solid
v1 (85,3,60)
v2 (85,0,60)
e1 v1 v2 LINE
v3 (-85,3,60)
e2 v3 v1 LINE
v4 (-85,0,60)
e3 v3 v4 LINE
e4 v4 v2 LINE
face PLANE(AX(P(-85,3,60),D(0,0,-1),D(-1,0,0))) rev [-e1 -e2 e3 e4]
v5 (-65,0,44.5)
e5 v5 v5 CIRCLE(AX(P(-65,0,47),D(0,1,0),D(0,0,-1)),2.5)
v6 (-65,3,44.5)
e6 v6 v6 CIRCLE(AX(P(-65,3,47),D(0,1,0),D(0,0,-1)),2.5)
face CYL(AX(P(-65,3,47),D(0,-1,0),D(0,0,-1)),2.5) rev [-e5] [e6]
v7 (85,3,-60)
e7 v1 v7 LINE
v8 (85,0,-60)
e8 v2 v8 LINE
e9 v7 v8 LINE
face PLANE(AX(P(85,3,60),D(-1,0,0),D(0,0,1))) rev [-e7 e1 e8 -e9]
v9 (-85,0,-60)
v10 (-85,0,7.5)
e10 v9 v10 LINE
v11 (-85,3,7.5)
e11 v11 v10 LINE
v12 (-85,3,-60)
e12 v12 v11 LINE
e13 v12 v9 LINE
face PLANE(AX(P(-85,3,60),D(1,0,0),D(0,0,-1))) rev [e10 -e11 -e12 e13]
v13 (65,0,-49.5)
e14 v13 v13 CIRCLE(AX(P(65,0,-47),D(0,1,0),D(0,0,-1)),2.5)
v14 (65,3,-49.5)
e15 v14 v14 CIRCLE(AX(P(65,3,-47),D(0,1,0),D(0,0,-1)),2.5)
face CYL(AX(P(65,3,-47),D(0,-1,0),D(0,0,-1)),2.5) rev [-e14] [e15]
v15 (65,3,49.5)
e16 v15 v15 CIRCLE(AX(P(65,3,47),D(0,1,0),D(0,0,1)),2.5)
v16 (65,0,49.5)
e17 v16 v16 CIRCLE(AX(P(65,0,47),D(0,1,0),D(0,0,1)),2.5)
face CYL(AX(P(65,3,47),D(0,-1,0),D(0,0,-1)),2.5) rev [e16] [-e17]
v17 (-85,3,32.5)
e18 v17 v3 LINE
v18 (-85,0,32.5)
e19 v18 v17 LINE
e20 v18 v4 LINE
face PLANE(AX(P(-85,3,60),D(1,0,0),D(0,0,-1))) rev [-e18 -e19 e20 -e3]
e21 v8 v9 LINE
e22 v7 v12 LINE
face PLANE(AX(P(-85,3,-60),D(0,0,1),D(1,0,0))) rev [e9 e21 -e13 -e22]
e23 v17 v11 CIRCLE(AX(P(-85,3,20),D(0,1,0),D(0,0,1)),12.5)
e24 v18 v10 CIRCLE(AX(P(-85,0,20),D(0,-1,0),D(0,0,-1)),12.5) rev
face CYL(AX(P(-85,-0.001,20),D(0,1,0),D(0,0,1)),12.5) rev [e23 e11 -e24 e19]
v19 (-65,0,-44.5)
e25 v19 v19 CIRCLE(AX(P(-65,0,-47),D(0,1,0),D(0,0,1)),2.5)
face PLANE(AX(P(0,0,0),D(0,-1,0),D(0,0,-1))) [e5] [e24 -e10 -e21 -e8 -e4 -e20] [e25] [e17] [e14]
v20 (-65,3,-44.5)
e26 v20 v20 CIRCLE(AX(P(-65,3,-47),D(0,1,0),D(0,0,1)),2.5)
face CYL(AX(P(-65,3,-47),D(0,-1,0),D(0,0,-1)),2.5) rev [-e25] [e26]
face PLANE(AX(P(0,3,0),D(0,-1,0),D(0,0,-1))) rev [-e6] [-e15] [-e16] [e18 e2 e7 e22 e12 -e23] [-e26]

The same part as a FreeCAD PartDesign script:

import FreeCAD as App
import Part
import Sketcher
from FreeCAD import Vector
Q = App.Units.Quantity

doc = App.newDocument("Part")
params = doc.addObject("Spreadsheet::Sheet", "Params")
for row, (alias, value) in enumerate([
    ("sketch1_diameter", "5 mm"),
    ("sketch1_width", "170 mm"),
    ("sketch1_height", "120 mm"),
    ("pad1_length", "3 mm"),
    ("sketch2_diameter", "25 mm"),
], start=1):
    params.set(f"A{row}", alias)
    params.set(f"B{row}", "=" + value)
    params.setAlias(f"B{row}", alias)

body = doc.addObject("PartDesign::Body", "Body")

# Sketch on XZ plane
sketch1 = doc.addObject("Sketcher::SketchObject", "Sketch")
body.addObject(sketch1)
sketch1.AttachmentSupport = (doc.XZ_Plane, [""])
sketch1.MapMode = "FlatFace"
sketch1.addGeometry([
    Part.LineSegment(Vector(-85, -60, 0), Vector(-85, 60, 0)),  # 0
    Part.LineSegment(Vector(-85, 60, 0), Vector(85, 60, 0)),  # 1
    Part.LineSegment(Vector(85, 60, 0), Vector(85, -60, 0)),  # 2
    Part.LineSegment(Vector(85, -60, 0), Vector(-85, -60, 0)),  # 3
    Part.Circle(Vector(-65, 47, 0), Vector(0, 0, 1), 2.5),  # 4
    Part.Circle(Vector(65, 47, 0), Vector(0, 0, 1), 2.5),  # 5
    Part.Circle(Vector(-65, -47, 0), Vector(0, 0, 1), 2.5),  # 6
    Part.Circle(Vector(65, -47, 0), Vector(0, 0, 1), 2.5),  # 7
], False)
sketch1.addConstraint([
    Sketcher.Constraint("Coincident", 0, 2, 1, 1),
    Sketcher.Constraint("Coincident", 1, 2, 2, 1),
    Sketcher.Constraint("Coincident", 2, 2, 3, 1),
    Sketcher.Constraint("Coincident", 3, 2, 0, 1),
    Sketcher.Constraint("Vertical", 0),
    Sketcher.Constraint("Horizontal", 1),
    Sketcher.Constraint("Vertical", 2),
    Sketcher.Constraint("Horizontal", 3),
    Sketcher.Constraint("Equal", 4, 5),
    Sketcher.Constraint("Equal", 5, 6),
    Sketcher.Constraint("Equal", 6, 7),
    Sketcher.Constraint("Symmetric", 5, 3, 6, 3, -1, 1),
    Sketcher.Constraint("Symmetric", 4, 3, 7, 3, -1, 1),
    Sketcher.Constraint("Symmetric", 0, 2, 2, 2, -1, 1),
    Sketcher.Constraint("Symmetric", 4, 3, 5, 3, -2),
    Sketcher.Constraint("Diameter", 4, Q("5 mm")),
    Sketcher.Constraint("DistanceX", 1, 1, 1, 2, Q("170 mm")),
    Sketcher.Constraint("DistanceY", 0, 1, 0, 2, Q("120 mm")),
    Sketcher.Constraint("DistanceX", 4, 3, -1, 1, Q("65 mm")),
    Sketcher.Constraint("DistanceY", -1, 1, 4, 3, Q("47 mm")),
])
sketch1.setExpression("Constraints[15]", "Params.sketch1_diameter")
sketch1.setExpression("Constraints[16]", "Params.sketch1_width")
sketch1.setExpression("Constraints[17]", "Params.sketch1_height")
pad1 = doc.addObject("PartDesign::Pad", "Pad")
body.addObject(pad1)
pad1.Profile = sketch1
pad1.setExpression("Length", "Params.pad1_length")
pad1.Reversed = True

# Sketch on XZ plane
sketch2 = doc.addObject("Sketcher::SketchObject", "Sketch001")
body.addObject(sketch2)
sketch2.AttachmentSupport = (doc.XZ_Plane, [""])
sketch2.MapMode = "FlatFace"
sketch2.AttachmentOffset = App.Placement(Vector(0, 0, -3), App.Rotation())
sketch2.addGeometry(Part.Circle(Vector(-85, 20, 0), Vector(0, 0, 1), 12), False)
sketch2.addConstraint([
    Sketcher.Constraint("Diameter", 0, Q("25 mm")),
    Sketcher.Constraint("DistanceX", 0, 3, -1, 1, Q("85 mm")),
    Sketcher.Constraint("DistanceY", -1, 1, 0, 3, Q("20 mm")),
])
sketch2.setExpression("Constraints[0]", "Params.sketch2_diameter")
pocket1 = doc.addObject("PartDesign::Pocket", "Pocket")
body.addObject(pocket1)
pocket1.Profile = sketch2
pocket1.Type = "UpToFirst"
pocket1.Reversed = True

doc.recompute()
